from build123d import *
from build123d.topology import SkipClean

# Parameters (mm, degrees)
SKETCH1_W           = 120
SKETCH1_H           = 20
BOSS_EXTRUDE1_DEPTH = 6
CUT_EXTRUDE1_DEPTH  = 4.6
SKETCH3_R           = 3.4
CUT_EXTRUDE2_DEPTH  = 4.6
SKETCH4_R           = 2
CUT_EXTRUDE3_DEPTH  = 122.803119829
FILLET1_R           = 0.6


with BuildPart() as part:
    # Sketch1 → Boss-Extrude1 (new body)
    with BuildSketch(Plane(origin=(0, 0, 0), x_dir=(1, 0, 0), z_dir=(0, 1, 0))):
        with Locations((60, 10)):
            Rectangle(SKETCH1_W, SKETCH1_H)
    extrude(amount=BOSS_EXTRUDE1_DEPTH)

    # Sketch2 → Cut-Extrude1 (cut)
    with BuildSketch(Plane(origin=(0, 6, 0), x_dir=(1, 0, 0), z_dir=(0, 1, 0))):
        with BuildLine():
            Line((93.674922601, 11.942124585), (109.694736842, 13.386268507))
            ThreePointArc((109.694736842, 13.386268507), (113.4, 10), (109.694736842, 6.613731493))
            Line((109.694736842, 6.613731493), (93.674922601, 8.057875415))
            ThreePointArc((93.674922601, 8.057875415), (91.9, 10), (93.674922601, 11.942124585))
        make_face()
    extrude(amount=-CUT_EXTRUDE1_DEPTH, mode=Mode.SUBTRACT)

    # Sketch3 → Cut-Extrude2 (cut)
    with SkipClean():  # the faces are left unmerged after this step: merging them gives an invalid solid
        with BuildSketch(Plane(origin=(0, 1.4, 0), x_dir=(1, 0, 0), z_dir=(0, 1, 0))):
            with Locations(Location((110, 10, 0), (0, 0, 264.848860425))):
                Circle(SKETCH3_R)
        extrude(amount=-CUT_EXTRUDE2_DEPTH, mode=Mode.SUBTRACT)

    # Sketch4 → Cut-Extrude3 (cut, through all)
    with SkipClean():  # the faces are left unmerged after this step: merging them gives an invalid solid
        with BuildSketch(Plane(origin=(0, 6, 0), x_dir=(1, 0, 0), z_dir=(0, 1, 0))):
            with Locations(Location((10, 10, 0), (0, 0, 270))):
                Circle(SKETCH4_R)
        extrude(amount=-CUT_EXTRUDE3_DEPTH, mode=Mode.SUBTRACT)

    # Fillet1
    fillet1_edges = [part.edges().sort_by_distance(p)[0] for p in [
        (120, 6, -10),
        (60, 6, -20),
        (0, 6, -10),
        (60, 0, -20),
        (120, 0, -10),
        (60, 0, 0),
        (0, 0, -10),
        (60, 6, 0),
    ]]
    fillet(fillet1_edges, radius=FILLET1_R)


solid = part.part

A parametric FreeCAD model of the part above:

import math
import FreeCAD as App
import Part
import Sketcher
from FreeCAD import Vector


def edges_at(feature, points):
    """Names of the edges that pass closest to the given points."""
    edges = feature.Shape.Edges
    near = lambda p: min(range(len(edges)), key=lambda i: edges[i].distToShape(Part.Vertex(*p))[0])
    return sorted({f"Edge{near(p) + 1}" for p in points})


def add_polygon(sketch, points):
    """Adds a closed chain of lines whose ends are joined by coincident constraints."""
    first, n = sketch.GeometryCount, len(points)
    for a, b in zip(points, points[1:] + points[:1]):
        sketch.addGeometry(Part.LineSegment(App.Vector(*a, 0), App.Vector(*b, 0)), False)
    for i in range(n):
        sketch.addConstraint(Sketcher.Constraint("Coincident", first + i, 2, first + (i + 1) % n, 1))

doc = App.newDocument("Part")
body = doc.addObject("PartDesign::Body", "Body")

sketch1 = body.newObject("Sketcher::SketchObject", "Sketch")
sketch1.AttachmentSupport = (doc.getObject("XZ_Plane"), [""])
sketch1.MapMode = "FlatFace"
add_polygon(sketch1, [(0, -20), (0, 0), (120, 0), (120, -20)])
sketch1.addConstraint([
    Sketcher.Constraint("Vertical", 0),
    Sketcher.Constraint("Horizontal", 1),
    Sketcher.Constraint("Vertical", 2),
    Sketcher.Constraint("Horizontal", 3),
    Sketcher.Constraint("Coincident", 0, 2, -1, 1),
    Sketcher.Constraint("DistanceX", 1, 1, 1, 2, 120.0),
    Sketcher.Constraint("DistanceY", 0, 1, 0, 2, 20.0),
])
pad1 = body.newObject("PartDesign::Pad", "Pad")
pad1.Profile = sketch1
pad1.Length = 6
pad1.Reversed = True

sketch2 = body.newObject("Sketcher::SketchObject", "Sketch001")
sketch2.AttachmentSupport = (doc.getObject("XZ_Plane"), [""])
sketch2.MapMode = "FlatFace"
sketch2.AttachmentOffset = App.Placement(Vector(0, 0, -6), App.Rotation())
sketch2.addGeometry([
    Part.LineSegment(Vector(109.7, -13.4, 0), Vector(93.7, -11.9, 0)),
    Part.ArcOfCircle(Part.Circle(Vector(93.8, -10, 0), Vector(0, 0, 1), 1.9), math.radians(95), math.radians(265)),
    Part.LineSegment(Vector(93.7, -8.1, 0), Vector(109.7, -6.6, 0)),
    Part.ArcOfCircle(Part.Circle(Vector(110, -10, 0), Vector(0, 0, 1), 3.4), math.radians(-95), math.radians(95)),
], False)
sketch2.addConstraint([
    Sketcher.Constraint("Tangent", 0, 2, 1, 2),
    Sketcher.Constraint("Tangent", 1, 1, 2, 1),
    Sketcher.Constraint("Tangent", 2, 2, 3, 2),
    Sketcher.Constraint("Tangent", 3, 1, 0, 1),
    Sketcher.Constraint("Horizontal", 1, 3, 3, 3),
    Sketcher.Constraint("Radius", 3, 3.4),
    Sketcher.Constraint("Radius", 1, 1.95),
    Sketcher.Constraint("DistanceY", 1, 3, -1, 1, 10.0),
    Sketcher.Constraint("DistanceX", -1, 1, 3, 3, 110.0),
    Sketcher.Constraint("DistanceX", -1, 1, 1, 3, 93.85),
])
pocket1 = body.newObject("PartDesign::Pocket", "Pocket")
pocket1.Profile = sketch2
pocket1.Length = 4.6
pocket1.Reversed = True

sketch3 = body.newObject("Sketcher::SketchObject", "Sketch002")
sketch3.AttachmentSupport = (doc.getObject("XZ_Plane"), [""])
sketch3.MapMode = "FlatFace"
sketch3.AttachmentOffset = App.Placement(Vector(0, 0, -1.4), App.Rotation())
sketch3.addGeometry(Part.Circle(Vector(110, -10, 0), Vector(0, 0, 1), 3.4), False)
sketch3.addConstraint([
    Sketcher.Constraint("Diameter", 0, 6.8),
    Sketcher.Constraint("DistanceX", -1, 1, 0, 3, 110.0),
    Sketcher.Constraint("DistanceY", 0, 3, -1, 1, 10.0),
])
pocket2 = body.newObject("PartDesign::Pocket", "Pocket001")
pocket2.Profile = sketch3
pocket2.Length = 4.6
pocket2.Reversed = True

sketch4 = body.newObject("Sketcher::SketchObject", "Sketch003")
sketch4.AttachmentSupport = (doc.getObject("XZ_Plane"), [""])
sketch4.MapMode = "FlatFace"
sketch4.AttachmentOffset = App.Placement(Vector(0, 0, -6), App.Rotation())
sketch4.addGeometry(Part.Circle(Vector(10, -10, 0), Vector(0, 0, 1), 2), False)
sketch4.addConstraint([
    Sketcher.Constraint("Diameter", 0, 4.0),
    Sketcher.Constraint("DistanceX", -1, 1, 0, 3, 10.0),
    Sketcher.Constraint("DistanceY", 0, 3, -1, 1, 10.0),
])
pocket3 = body.newObject("PartDesign::Pocket", "Pocket002")
pocket3.Profile = sketch4
pocket3.Type = "ThroughAll"
pocket3.Reversed = True
doc.recompute()

fillet = body.newObject("PartDesign::Fillet", "Fillet")
fillet.Base = (pocket3, edges_at(pocket3, [
    (120, 6, -10),
    (60, 6, -20),
    (0, 6, -10),
    (60, 0, -20),
    (120, 0, -10),
    (60, 0, 0),
    (0, 0, -10),
    (60, 6, 0),
]))
fillet.Radius = 0.6

doc.recompute()
